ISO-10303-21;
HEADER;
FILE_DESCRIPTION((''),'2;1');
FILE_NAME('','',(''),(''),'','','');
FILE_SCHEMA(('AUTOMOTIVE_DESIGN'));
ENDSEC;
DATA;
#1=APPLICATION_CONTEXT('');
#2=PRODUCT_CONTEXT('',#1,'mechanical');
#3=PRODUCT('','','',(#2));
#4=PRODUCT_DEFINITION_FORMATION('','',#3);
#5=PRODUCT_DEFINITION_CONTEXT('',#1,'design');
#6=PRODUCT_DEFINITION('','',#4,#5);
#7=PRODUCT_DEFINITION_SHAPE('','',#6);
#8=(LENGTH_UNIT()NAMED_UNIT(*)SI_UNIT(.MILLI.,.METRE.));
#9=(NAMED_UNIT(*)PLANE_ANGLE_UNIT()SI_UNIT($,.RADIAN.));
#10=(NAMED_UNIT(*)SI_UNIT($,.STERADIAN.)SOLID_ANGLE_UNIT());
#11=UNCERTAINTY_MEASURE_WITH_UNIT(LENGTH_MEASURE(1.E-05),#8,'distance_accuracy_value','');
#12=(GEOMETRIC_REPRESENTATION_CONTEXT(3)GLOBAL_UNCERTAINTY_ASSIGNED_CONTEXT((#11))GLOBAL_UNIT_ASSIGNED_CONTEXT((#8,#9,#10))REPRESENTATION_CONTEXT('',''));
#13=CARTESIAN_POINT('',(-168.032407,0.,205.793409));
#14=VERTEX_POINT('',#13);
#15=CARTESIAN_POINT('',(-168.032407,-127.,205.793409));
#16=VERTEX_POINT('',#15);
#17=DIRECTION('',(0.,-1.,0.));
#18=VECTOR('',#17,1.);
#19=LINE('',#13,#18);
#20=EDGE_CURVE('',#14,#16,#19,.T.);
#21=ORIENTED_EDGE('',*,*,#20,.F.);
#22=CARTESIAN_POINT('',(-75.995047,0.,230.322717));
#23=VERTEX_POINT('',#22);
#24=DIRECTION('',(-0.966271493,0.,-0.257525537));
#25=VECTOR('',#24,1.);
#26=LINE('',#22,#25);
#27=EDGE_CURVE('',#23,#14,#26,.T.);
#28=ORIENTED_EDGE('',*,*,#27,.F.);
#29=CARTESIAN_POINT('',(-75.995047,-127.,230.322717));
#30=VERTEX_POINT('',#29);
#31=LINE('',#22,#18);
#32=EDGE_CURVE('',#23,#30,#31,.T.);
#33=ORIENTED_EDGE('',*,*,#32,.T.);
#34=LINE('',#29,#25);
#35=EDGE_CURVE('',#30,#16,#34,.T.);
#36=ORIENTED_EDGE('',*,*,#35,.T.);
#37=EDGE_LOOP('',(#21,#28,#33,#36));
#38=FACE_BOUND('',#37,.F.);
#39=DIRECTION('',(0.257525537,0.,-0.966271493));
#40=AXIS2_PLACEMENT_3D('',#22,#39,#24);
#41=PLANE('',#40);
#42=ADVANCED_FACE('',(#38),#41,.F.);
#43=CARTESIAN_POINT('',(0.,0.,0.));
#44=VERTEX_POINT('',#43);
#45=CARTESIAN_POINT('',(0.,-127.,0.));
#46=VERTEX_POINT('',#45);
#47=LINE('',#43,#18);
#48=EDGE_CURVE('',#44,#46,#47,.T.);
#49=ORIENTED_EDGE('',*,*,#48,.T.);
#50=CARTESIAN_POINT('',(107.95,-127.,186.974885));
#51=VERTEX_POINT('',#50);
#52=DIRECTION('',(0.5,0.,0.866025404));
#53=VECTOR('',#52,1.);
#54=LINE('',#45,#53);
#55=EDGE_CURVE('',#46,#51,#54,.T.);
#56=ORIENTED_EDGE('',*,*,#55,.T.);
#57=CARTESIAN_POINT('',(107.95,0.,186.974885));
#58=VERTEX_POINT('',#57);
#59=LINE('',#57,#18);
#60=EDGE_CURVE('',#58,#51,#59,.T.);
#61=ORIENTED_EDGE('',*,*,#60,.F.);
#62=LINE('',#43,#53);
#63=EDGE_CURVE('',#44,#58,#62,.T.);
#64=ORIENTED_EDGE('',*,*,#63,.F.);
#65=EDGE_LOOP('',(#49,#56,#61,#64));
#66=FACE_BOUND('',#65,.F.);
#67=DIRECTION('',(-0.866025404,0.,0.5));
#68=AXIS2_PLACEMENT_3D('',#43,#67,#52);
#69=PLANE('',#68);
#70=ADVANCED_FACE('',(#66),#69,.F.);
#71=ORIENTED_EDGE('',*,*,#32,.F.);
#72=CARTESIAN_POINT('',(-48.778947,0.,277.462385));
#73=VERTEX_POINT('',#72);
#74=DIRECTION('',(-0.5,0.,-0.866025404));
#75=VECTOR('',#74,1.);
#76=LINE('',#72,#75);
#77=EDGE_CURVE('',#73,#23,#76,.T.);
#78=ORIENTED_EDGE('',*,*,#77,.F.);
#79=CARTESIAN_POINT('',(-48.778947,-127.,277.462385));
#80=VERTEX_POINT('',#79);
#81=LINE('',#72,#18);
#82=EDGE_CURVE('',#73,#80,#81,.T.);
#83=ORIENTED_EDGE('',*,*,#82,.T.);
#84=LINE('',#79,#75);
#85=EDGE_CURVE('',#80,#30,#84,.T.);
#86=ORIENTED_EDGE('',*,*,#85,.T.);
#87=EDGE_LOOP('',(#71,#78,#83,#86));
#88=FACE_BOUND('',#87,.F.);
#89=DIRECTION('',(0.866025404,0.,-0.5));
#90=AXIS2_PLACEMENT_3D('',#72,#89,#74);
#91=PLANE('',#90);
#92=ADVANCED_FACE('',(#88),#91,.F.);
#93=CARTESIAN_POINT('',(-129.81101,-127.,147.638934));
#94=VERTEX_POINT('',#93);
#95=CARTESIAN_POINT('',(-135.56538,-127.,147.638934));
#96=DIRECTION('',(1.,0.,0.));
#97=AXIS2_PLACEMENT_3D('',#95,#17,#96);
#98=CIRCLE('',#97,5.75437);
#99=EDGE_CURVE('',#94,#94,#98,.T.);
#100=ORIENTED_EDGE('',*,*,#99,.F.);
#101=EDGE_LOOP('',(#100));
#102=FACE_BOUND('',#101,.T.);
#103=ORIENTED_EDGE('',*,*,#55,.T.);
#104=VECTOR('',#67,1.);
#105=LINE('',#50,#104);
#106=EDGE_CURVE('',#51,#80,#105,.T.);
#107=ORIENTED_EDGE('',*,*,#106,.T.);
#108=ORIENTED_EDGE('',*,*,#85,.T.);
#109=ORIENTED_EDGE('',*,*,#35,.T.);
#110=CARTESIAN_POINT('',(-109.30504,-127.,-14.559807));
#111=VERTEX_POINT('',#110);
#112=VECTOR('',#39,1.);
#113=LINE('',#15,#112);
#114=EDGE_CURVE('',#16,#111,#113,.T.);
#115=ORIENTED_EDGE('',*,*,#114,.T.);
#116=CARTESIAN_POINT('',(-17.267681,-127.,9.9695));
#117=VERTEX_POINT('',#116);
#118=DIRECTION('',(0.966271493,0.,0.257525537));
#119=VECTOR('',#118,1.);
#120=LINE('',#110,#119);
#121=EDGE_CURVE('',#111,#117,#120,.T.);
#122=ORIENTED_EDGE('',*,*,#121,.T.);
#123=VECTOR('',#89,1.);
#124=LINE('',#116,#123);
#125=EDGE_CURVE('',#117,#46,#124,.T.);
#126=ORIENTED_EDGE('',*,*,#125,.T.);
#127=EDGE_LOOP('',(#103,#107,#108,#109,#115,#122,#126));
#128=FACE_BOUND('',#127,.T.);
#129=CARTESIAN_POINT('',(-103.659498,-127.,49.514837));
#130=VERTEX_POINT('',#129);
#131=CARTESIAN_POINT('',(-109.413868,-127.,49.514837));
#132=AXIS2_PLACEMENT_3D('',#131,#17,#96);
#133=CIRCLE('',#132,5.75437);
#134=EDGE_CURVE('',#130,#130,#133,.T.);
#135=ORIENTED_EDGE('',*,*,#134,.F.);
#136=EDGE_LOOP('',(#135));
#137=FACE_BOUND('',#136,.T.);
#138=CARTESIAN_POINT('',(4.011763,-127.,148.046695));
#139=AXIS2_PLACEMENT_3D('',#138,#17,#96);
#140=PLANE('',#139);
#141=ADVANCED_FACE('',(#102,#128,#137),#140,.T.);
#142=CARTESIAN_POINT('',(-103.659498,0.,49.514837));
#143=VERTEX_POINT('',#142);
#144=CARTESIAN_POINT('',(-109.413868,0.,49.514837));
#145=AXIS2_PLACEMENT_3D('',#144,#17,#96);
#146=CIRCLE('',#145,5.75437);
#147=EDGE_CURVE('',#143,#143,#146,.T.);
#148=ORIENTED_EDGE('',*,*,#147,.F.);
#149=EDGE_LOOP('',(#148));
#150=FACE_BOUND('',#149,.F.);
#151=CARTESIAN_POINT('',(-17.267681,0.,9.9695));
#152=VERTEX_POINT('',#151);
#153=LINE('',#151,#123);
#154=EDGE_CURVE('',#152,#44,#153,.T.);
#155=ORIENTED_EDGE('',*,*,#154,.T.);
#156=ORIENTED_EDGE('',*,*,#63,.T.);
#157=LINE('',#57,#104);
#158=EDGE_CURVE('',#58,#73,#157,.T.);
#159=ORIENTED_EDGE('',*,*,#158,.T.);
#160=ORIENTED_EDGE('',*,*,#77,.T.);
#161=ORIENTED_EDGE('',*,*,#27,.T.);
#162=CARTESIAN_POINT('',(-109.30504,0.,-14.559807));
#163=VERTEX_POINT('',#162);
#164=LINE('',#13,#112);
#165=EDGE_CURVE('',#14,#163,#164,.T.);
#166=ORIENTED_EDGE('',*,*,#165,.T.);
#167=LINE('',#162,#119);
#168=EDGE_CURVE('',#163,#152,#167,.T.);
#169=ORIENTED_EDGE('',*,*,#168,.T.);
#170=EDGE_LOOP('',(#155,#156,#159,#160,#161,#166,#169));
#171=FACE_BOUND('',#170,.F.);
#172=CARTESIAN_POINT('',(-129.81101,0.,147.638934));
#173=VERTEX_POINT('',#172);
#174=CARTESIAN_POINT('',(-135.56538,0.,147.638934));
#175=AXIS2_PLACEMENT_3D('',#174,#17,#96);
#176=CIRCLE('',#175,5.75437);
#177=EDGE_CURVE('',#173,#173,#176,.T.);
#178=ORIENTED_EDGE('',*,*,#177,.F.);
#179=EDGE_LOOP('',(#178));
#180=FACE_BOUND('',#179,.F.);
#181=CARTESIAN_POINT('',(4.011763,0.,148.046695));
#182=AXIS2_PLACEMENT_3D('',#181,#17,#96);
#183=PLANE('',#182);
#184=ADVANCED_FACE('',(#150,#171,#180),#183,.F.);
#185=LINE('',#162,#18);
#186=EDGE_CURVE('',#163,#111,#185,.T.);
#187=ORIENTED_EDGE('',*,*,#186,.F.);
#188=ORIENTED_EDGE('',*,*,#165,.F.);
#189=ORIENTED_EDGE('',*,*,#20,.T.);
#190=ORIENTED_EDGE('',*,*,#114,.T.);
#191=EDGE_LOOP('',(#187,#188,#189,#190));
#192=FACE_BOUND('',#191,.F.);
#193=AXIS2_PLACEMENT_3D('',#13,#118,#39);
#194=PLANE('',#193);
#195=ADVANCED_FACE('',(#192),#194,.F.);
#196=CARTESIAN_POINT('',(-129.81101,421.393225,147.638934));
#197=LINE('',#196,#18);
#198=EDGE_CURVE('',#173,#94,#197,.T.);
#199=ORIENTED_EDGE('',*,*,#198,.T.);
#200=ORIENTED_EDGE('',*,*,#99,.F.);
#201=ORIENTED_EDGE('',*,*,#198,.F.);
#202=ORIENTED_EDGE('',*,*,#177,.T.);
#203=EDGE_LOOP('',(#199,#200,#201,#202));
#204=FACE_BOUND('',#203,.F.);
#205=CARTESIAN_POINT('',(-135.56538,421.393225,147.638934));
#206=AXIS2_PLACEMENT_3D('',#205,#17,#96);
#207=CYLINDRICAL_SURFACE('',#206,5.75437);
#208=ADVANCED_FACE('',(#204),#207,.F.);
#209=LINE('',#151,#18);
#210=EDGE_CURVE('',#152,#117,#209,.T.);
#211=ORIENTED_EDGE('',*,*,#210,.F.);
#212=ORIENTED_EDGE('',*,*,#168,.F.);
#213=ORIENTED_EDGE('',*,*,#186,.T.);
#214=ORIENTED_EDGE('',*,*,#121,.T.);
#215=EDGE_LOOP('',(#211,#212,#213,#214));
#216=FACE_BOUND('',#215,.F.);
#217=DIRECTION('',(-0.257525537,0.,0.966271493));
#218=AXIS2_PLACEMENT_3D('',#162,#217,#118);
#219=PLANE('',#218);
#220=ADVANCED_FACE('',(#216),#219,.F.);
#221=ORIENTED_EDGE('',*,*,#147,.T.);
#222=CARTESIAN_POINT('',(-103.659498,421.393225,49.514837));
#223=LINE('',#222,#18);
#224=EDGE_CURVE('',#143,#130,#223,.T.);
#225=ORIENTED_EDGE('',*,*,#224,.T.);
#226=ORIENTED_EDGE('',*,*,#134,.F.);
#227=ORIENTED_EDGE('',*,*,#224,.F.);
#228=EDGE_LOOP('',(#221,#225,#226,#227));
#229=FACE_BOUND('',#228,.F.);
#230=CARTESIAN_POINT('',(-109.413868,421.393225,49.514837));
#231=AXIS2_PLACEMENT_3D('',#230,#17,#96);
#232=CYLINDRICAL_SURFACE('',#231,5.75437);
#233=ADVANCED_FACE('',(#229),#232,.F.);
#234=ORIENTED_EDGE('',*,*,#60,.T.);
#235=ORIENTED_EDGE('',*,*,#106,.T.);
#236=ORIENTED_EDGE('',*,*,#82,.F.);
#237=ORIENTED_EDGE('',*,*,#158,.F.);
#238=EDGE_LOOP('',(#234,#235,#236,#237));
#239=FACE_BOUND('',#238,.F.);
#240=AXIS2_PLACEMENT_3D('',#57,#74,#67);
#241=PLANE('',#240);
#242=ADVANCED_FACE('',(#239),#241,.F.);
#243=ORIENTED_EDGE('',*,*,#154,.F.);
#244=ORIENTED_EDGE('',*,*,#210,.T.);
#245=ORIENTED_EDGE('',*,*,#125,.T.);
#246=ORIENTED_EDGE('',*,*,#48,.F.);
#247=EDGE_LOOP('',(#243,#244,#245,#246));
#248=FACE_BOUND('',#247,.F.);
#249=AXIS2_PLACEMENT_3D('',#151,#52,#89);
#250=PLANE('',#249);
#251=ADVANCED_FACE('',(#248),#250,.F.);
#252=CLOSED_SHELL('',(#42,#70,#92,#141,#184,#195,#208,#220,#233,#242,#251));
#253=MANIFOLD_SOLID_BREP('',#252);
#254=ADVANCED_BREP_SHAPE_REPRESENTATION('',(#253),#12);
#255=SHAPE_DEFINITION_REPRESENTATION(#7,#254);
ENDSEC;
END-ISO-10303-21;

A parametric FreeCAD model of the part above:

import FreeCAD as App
import Part
import Sketcher

V = App.Vector
Q = App.Units.Quantity


def add_polygon(sketch, points):
    """Adds a closed chain of lines whose ends are joined by coincident constraints."""
    first, n = sketch.GeometryCount, len(points)
    for a, b in zip(points, points[1:] + points[:1]):
        sketch.addGeometry(Part.LineSegment(App.Vector(*a, 0), App.Vector(*b, 0)), False)
    for i in range(n):
        sketch.addConstraint(Sketcher.Constraint("Coincident", first + i, 2, first + (i + 1) % n, 1))

doc = App.newDocument("Part")
body = doc.addObject("PartDesign::Body", "Body")

# Sketch on XZ plane
sketch1 = doc.addObject("Sketcher::SketchObject", "Sketch")
body.addObject(sketch1)
sketch1.AttachmentSupport = (doc.XZ_Plane, [""])
sketch1.MapMode = "FlatFace"
add_polygon(sketch1, [(-17.267681, 9.9695), (0, 0), (107.95, 186.974885), (-48.778947, 277.462385), (-75.995047, 230.322717), (-168.032407, 205.793409), (-109.30504, -14.559807)])  # lines 0-6
sketch1.addConstraint(Sketcher.Constraint("Coincident", 0, 2, -1, 1))
sketch1.addConstraint(Sketcher.Constraint("Perpendicular", 0, 1))
sketch1.addConstraint(Sketcher.Constraint("Perpendicular", 1, 2))
sketch1.addConstraint(Sketcher.Constraint("Perpendicular", 2, 3))
sketch1.addConstraint(Sketcher.Constraint("Perpendicular", 4, 5))
sketch1.addConstraint(Sketcher.Constraint("Perpendicular", 5, 6))
sketch1.addConstraint(Sketcher.Constraint("Equal", 4, 6))
sketch1.addConstraint(Sketcher.Constraint("Angle", 0, Q("-30 deg")))
sketch1.addConstraint(Sketcher.Constraint("Distance", 1, Q("8.5 in")))
sketch1.addConstraint(Sketcher.Constraint("Distance", 4, Q("3.75 in")))
sketch1.addConstraint(Sketcher.Constraint("Distance", 0, Q("0.785 in")))
sketch1.addConstraint(Sketcher.Constraint("Distance", 2, Q("7.125 in")))
sketch1.addConstraint(Sketcher.Constraint("Distance", 3, Q("2.143 in")))
pad1 = doc.addObject("PartDesign::Pad", "Pad")
body.addObject(pad1)
pad1.Profile = sketch1
pad1.Length = Q("5 in")

# Sketch on XZ plane
sketch2 = doc.addObject("Sketcher::SketchObject", "Sketch001")
body.addObject(sketch2)
sketch2.AttachmentSupport = (doc.XZ_Plane, [""])
sketch2.MapMode = "FlatFace"
sketch2.addGeometry(Part.Circle(V(-135.56538, 147.638934, 0), V(0, 0, 1), 5.75437), False)
sketch2.addGeometry(Part.Circle(V(-109.413868, 49.514837, 0), V(0, 0, 1), 5.75437), False)
sketch2.addConstraint(Sketcher.Constraint("Equal", 0, 1))
sketch2.addConstraint(Sketcher.Constraint("Diameter", 0, Q("0.4531 in")))
sketch2.addConstraint(Sketcher.Constraint("DistanceX", 0, 3, -1, 1, Q("135.56538 mm")))
sketch2.addConstraint(Sketcher.Constraint("DistanceX", 1, 3, -1, 1, Q("109.413868 mm")))
sketch2.addConstraint(Sketcher.Constraint("DistanceY", -1, 1, 0, 3, Q("147.638934 mm")))
sketch2.addConstraint(Sketcher.Constraint("DistanceY", -1, 1, 1, 3, Q("49.514837 mm")))
doc.recompute()
hole = doc.addObject("PartDesign::Hole", "Hole")
body.addObject(hole)
hole.Profile = sketch2
hole.ThreadType = "None"
hole.Diameter = Q("0.4531 in")
hole.DepthType = "ThroughAll"
hole.Reversed = True

doc.recompute()
